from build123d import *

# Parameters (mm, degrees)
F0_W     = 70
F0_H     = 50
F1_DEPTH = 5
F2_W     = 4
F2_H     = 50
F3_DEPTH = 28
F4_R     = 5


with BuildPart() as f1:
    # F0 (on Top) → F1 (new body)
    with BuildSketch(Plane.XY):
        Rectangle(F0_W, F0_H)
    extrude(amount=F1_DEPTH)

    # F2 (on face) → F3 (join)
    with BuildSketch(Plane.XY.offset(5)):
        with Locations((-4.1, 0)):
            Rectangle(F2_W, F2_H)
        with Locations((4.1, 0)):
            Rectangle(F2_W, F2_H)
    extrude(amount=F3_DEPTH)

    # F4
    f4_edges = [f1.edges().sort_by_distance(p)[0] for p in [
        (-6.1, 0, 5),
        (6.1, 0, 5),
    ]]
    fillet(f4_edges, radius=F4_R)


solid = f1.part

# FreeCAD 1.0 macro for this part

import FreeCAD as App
import Part
import Sketcher


def edges_at(feature, points):
    """Names of the edges that pass closest to the given points."""
    edges = feature.Shape.Edges
    near = lambda p: min(range(len(edges)), key=lambda i: edges[i].distToShape(Part.Vertex(*p))[0])
    return sorted({f"Edge{near(p) + 1}" for p in points})


def add_polygon(sketch, points):
    """Adds a closed chain of lines whose ends are joined by coincident constraints."""
    first, n = sketch.GeometryCount, len(points)
    for a, b in zip(points, points[1:] + points[:1]):
        sketch.addGeometry(Part.LineSegment(App.Vector(*a, 0), App.Vector(*b, 0)), False)
    for i in range(n):
        sketch.addConstraint(Sketcher.Constraint("Coincident", first + i, 2, first + (i + 1) % n, 1))

doc = App.newDocument("Part")
body = doc.addObject("PartDesign::Body", "Body")

# Sketch on XY plane
sketch1 = body.newObject("Sketcher::SketchObject", "Sketch")
sketch1.AttachmentSupport = (doc.getObject("XY_Plane"), [""])
sketch1.MapMode = "FlatFace"
add_polygon(sketch1, [(-35, 25), (-35, -25), (35, -25), (35, 25)])  # lines 0-3
sketch1.addConstraint([
    Sketcher.Constraint("Vertical", 0),
    Sketcher.Constraint("Horizontal", 1),
    Sketcher.Constraint("Vertical", 2),
    Sketcher.Constraint("Horizontal", 3),
    Sketcher.Constraint("Symmetric", 0, 2, 2, 2, -1, 1),
    Sketcher.Constraint("DistanceX", 1, 1, 1, 2, 70.0),
    Sketcher.Constraint("DistanceY", 0, 2, 0, 1, 50.0),
])
pad1 = body.newObject("PartDesign::Pad", "Pad")
pad1.Profile = sketch1
pad1.Length = 5

# Sketch on XY plane
sketch2 = body.newObject("Sketcher::SketchObject", "Sketch001")
sketch2.AttachmentSupport = (doc.getObject("XY_Plane"), [""])
sketch2.MapMode = "FlatFace"
sketch2.AttachmentOffset = App.Placement(App.Vector(0, 0, 5), App.Rotation())
add_polygon(sketch2, [(-6.1, 25), (-6.1, -25), (-2.1, -25), (-2.1, 25)])  # lines 0-3
add_polygon(sketch2, [(2.1, 25), (2.1, -25), (6.1, -25), (6.1, 25)])  # lines 4-7
sketch2.addConstraint([
    Sketcher.Constraint("Vertical", 0),
    Sketcher.Constraint("Horizontal", 1),
    Sketcher.Constraint("Vertical", 2),
    Sketcher.Constraint("Horizontal", 3),
    Sketcher.Constraint("Vertical", 4),
    Sketcher.Constraint("Horizontal", 5),
    Sketcher.Constraint("Vertical", 6),
    Sketcher.Constraint("Horizontal", 7),
    Sketcher.Constraint("Symmetric", 2, 2, 4, 2, -1, 1),
    Sketcher.Constraint("Symmetric", 0, 2, 6, 2, -1, 1),
    Sketcher.Constraint("Horizontal", 1, 2, 4, 2),
    Sketcher.Constraint("DistanceX", 1, 1, 1, 2, 4.0),
    Sketcher.Constraint("DistanceY", 0, 2, 0, 1, 50.0),
    Sketcher.Constraint("DistanceX", 0, 2, -1, 1, 6.1),
])
pad2 = body.newObject("PartDesign::Pad", "Pad001")
pad2.Profile = sketch2
pad2.Length = 28
doc.recompute()

fillet = body.newObject("PartDesign::Fillet", "Fillet")
fillet.Base = (pad2, edges_at(pad2, [(-6.1, 0, 5), (6.1, 0, 5)]))
fillet.Radius = 5

doc.recompute()
